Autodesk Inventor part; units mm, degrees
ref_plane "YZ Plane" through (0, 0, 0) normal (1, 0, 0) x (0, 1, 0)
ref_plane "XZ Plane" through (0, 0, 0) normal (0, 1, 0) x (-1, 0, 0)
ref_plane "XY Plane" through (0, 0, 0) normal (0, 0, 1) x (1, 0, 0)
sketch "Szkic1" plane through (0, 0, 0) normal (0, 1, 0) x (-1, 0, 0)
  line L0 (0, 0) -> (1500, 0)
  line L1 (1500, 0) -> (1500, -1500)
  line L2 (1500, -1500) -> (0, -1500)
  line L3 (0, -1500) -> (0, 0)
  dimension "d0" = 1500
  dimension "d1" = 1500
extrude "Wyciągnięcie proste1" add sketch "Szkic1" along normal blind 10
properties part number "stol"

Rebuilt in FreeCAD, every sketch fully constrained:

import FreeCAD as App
import Part
import Sketcher

V = App.Vector

doc = App.newDocument("Part")
body = doc.addObject("PartDesign::Body", "Body")

# Sketch on XZ plane
sketch1 = body.newObject("Sketcher::SketchObject", "Sketch")
sketch1.AttachmentSupport = (doc.getObject("XZ_Plane"), [""])
sketch1.MapMode = "FlatFace"
sketch1.addGeometry(Part.LineSegment(V(-1500, 0, 0), V(0, 0, 0)), False)
sketch1.addGeometry(Part.LineSegment(V(0, 0, 0), V(0, -1500, 0)), False)
sketch1.addGeometry(Part.LineSegment(V(0, -1500, 0), V(-1500, -1500, 0)), False)
sketch1.addGeometry(Part.LineSegment(V(-1500, -1500, 0), V(-1500, 0, 0)), False)
sketch1.addConstraint(Sketcher.Constraint("Coincident", 0, 2, 1, 1))
sketch1.addConstraint(Sketcher.Constraint("Coincident", 1, 2, 2, 1))
sketch1.addConstraint(Sketcher.Constraint("Coincident", 2, 2, 3, 1))
sketch1.addConstraint(Sketcher.Constraint("Coincident", 3, 2, 0, 1))
sketch1.addConstraint(Sketcher.Constraint("Horizontal", 0))
sketch1.addConstraint(Sketcher.Constraint("Vertical", 1))
sketch1.addConstraint(Sketcher.Constraint("Horizontal", 2))
sketch1.addConstraint(Sketcher.Constraint("Vertical", 3))
sketch1.addConstraint(Sketcher.Constraint("Coincident", 0, 2, -1, 1))
sketch1.addConstraint(Sketcher.Constraint("Equal", 2, 1))
sketch1.addConstraint(Sketcher.Constraint("DistanceX", 0, 1, 0, 2, 1500.0))
pad1 = body.newObject("PartDesign::Pad", "Pad")
pad1.Profile = sketch1
pad1.Length = 10
pad1.Reversed = True

doc.recompute()
